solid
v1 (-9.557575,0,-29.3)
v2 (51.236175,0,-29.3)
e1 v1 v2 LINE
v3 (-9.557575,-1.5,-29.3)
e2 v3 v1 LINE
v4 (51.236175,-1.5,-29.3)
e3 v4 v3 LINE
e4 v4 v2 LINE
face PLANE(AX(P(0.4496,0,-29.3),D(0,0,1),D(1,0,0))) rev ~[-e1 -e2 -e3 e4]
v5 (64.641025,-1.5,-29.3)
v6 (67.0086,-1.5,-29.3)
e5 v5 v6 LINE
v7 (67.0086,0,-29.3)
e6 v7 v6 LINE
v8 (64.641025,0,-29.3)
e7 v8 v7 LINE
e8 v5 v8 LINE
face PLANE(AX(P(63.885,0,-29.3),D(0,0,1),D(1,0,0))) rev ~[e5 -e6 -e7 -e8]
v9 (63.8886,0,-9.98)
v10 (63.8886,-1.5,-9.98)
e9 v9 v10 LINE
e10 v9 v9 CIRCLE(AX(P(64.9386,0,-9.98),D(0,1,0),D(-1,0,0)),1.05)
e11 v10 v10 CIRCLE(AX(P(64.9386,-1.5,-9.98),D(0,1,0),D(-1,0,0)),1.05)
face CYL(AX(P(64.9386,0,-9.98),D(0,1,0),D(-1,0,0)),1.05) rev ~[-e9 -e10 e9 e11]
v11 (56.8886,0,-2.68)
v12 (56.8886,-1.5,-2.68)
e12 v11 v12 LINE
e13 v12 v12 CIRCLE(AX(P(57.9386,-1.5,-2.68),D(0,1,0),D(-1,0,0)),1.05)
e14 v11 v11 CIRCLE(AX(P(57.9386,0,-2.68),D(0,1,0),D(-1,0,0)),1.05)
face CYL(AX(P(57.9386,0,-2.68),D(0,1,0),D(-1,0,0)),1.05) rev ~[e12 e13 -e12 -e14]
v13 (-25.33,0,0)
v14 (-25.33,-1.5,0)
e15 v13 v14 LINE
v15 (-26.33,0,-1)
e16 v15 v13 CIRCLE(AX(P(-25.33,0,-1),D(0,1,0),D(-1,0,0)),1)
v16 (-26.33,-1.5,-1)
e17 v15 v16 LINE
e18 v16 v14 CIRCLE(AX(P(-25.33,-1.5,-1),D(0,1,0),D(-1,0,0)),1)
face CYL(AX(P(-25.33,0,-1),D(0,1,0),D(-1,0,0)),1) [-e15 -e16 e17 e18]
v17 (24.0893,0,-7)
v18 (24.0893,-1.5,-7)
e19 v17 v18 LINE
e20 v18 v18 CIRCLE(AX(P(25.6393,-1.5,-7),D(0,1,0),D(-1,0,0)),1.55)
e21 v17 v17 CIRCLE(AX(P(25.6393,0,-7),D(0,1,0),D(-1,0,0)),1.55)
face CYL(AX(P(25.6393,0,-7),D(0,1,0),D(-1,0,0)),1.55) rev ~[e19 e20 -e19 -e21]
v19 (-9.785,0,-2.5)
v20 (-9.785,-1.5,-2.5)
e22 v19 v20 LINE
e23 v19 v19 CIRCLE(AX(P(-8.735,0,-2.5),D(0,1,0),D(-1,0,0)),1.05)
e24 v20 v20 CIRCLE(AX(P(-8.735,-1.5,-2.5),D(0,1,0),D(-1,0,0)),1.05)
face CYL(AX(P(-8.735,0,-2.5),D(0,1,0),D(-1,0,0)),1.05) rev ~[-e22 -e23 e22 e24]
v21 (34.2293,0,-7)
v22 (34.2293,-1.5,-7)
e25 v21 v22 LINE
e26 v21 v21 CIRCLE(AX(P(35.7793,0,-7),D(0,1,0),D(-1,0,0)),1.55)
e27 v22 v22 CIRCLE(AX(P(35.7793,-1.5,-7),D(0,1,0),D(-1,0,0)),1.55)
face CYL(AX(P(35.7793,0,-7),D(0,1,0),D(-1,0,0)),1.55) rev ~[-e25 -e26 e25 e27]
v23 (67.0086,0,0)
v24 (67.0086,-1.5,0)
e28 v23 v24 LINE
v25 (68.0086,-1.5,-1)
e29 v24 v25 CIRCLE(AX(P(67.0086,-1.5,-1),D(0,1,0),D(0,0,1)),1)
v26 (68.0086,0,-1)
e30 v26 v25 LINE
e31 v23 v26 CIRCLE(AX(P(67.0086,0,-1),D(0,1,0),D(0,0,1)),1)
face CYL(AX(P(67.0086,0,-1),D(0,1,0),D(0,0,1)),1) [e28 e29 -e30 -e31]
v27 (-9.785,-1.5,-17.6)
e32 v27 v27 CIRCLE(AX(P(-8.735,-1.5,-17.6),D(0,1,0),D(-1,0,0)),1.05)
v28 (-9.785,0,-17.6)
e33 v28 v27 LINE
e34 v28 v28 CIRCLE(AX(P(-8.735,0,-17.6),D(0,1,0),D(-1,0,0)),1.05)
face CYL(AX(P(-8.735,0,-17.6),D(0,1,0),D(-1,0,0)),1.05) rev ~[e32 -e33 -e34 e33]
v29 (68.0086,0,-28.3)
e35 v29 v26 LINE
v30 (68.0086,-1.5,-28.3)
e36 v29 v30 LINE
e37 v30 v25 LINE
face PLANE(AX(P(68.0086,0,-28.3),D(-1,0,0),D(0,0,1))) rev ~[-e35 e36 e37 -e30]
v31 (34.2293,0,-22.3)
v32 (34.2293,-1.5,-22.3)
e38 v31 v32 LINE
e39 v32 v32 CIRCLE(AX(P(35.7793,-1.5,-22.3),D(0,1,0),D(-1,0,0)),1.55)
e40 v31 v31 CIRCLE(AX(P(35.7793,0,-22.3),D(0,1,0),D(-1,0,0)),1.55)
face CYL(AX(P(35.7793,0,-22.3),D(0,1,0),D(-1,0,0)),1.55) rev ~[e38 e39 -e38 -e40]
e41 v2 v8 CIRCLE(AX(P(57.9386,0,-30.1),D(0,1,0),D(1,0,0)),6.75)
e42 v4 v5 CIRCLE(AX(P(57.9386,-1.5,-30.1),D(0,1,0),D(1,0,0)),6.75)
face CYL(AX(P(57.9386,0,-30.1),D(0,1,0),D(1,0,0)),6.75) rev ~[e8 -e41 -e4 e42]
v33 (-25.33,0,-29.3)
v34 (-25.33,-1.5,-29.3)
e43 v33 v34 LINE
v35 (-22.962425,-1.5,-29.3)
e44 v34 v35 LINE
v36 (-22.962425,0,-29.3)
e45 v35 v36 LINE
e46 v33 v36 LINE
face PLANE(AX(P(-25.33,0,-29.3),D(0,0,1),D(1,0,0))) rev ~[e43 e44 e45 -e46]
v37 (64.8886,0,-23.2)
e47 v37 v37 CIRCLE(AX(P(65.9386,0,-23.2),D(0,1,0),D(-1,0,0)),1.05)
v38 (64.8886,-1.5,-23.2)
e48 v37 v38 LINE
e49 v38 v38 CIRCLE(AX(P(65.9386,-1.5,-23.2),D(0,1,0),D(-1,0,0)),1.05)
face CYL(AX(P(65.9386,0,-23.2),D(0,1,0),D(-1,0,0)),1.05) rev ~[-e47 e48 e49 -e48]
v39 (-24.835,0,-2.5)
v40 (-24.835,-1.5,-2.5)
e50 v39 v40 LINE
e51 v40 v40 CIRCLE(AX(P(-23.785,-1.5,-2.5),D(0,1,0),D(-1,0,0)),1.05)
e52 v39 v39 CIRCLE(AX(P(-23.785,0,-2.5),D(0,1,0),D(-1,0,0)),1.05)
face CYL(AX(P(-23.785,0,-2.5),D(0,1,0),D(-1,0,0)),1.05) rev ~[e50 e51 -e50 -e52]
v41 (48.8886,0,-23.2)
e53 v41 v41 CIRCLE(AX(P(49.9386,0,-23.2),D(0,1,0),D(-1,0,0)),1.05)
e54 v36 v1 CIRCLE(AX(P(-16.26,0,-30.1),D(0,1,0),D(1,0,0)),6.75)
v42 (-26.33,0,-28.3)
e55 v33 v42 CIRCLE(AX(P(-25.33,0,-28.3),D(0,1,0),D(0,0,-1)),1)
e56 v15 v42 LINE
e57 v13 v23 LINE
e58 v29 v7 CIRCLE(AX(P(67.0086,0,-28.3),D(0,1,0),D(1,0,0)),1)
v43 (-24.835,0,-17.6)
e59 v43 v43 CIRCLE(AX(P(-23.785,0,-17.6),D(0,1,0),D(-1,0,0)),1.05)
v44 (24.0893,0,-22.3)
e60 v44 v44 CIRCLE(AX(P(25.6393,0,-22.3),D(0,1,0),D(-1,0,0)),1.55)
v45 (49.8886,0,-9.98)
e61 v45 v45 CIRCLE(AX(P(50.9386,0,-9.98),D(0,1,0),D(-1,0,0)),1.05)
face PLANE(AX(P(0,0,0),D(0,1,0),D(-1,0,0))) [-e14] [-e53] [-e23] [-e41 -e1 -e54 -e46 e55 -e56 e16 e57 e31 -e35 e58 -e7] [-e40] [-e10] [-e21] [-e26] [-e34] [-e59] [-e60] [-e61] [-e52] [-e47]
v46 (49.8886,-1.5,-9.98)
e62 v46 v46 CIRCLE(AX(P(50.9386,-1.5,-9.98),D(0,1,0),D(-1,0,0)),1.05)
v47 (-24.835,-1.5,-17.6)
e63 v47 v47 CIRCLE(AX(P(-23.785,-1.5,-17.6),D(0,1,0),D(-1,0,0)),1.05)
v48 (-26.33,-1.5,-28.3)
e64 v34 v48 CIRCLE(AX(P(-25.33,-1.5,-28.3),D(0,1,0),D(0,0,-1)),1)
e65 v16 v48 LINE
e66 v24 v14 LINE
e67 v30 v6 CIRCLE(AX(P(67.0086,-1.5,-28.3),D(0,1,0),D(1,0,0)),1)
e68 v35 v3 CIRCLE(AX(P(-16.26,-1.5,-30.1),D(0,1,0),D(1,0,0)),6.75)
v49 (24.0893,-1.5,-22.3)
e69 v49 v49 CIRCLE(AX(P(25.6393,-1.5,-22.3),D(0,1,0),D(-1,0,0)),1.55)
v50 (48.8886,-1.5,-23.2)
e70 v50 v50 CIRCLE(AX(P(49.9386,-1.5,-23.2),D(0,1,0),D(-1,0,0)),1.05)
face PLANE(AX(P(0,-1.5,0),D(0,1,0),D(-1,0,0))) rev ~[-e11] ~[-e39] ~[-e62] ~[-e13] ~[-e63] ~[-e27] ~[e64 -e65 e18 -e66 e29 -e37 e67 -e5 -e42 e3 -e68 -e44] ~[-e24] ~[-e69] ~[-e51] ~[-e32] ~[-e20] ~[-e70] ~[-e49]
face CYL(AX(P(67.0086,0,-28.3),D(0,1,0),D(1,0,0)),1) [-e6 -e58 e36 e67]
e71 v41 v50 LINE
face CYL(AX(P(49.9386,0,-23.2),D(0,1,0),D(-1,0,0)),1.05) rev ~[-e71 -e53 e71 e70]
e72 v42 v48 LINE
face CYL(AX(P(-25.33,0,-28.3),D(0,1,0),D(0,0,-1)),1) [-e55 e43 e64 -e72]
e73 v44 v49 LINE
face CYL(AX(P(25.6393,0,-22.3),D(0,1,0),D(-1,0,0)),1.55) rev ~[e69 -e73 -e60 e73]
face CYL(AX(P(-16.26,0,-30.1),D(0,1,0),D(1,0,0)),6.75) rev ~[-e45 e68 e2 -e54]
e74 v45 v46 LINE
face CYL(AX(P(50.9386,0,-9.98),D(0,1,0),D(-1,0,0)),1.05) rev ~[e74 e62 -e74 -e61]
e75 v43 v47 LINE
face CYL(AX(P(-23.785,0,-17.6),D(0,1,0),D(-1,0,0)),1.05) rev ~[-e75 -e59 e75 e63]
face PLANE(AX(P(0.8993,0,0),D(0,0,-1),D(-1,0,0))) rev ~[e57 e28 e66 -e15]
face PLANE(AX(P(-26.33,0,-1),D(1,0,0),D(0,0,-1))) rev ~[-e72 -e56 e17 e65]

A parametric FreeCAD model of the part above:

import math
import FreeCAD as App
import Part
import Sketcher
from FreeCAD import Vector
Q = App.Units.Quantity

doc = App.newDocument("Part")
body = doc.addObject("PartDesign::Body", "Body")

# Sketch on XZ plane
sketch1 = body.newObject("Sketcher::SketchObject", "Sketch")
sketch1.AttachmentSupport = (doc.getObject("XZ_Plane"), [""])
sketch1.MapMode = "FlatFace"
sketch1.addGeometry(Part.ArcOfCircle(Part.Circle(Vector(-16.3, -30.1, 0), Vector(0, 0, 1), 6), math.radians(8), math.radians(172)), False)
sketch1.addGeometry(Part.LineSegment(Vector(-22.2, -29.3, 0), Vector(-25.3, -29.3, 0)), False)
sketch1.addGeometry(Part.ArcOfCircle(Part.Circle(Vector(-25.3, -28.3, 0), Vector(0, 0, 1), 1), math.radians(180), math.radians(270)), False)
sketch1.addGeometry(Part.LineSegment(Vector(-26.3, -28.3, 0), Vector(-26.3, -1, 0)), False)
sketch1.addGeometry(Part.ArcOfCircle(Part.Circle(Vector(-25.3, -1, 0), Vector(0, 0, 1), 1), math.radians(90), math.radians(180)), False)
sketch1.addGeometry(Part.LineSegment(Vector(-25.3, 0, 0), Vector(67, 0, 0)), False)
sketch1.addGeometry(Part.ArcOfCircle(Part.Circle(Vector(67, -1, 0), Vector(0, 0, 1), 1), math.radians(0), math.radians(90)), False)
sketch1.addGeometry(Part.LineSegment(Vector(68, -1, 0), Vector(68, -28.3, 0)), False)
sketch1.addGeometry(Part.ArcOfCircle(Part.Circle(Vector(67, -28.3, 0), Vector(0, 0, 1), 1), math.radians(-90), math.radians(0)), False)
sketch1.addGeometry(Part.LineSegment(Vector(67, -29.3, 0), Vector(63.9, -29.3, 0)), False)
sketch1.addGeometry(Part.ArcOfCircle(Part.Circle(Vector(57.9, -30.1, 0), Vector(0, 0, 1), 6), math.radians(8), math.radians(172)), False)
sketch1.addGeometry(Part.LineSegment(Vector(52, -29.3, 0), Vector(-10.3, -29.3, 0)), False)
sketch1.addGeometry(Part.Circle(Vector(25.6, -7, 0), Vector(0, 0, 1), 1.6), False)
sketch1.addGeometry(Part.Circle(Vector(35.8, -22.3, 0), Vector(0, 0, 1), 1.6), False)
sketch1.addGeometry(Part.Circle(Vector(25.6, -22.3, 0), Vector(0, 0, 1), 1.6), False)
sketch1.addGeometry(Part.Circle(Vector(35.8, -7, 0), Vector(0, 0, 1), 1.6), False)
sketch1.addGeometry(Part.Circle(Vector(-23.8, -2.5, 0), Vector(0, 0, 1), 1.1), False)
sketch1.addGeometry(Part.Circle(Vector(-8.7, -17.6, 0), Vector(0, 0, 1), 1.1), False)
sketch1.addGeometry(Part.Circle(Vector(-23.8, -17.6, 0), Vector(0, 0, 1), 1.1), False)
sketch1.addGeometry(Part.Circle(Vector(-8.7, -2.5, 0), Vector(0, 0, 1), 1.1), False)
sketch1.addGeometry(Part.Circle(Vector(57.9, -2.7, 0), Vector(0, 0, 1), 1.1), False)
sketch1.addGeometry(Part.Circle(Vector(65.9, -23.2, 0), Vector(0, 0, 1), 1.1), False)
sketch1.addGeometry(Part.Circle(Vector(49.9, -23.2, 0), Vector(0, 0, 1), 1.1), False)
sketch1.addGeometry(Part.Circle(Vector(64.9, -10, 0), Vector(0, 0, 1), 1.1), False)
sketch1.addGeometry(Part.Circle(Vector(50.9, -10, 0), Vector(0, 0, 1), 1.1), False)
sketch1.addConstraint(Sketcher.Constraint("Coincident", 0, 2, 1, 1))
sketch1.addConstraint(Sketcher.Constraint("Tangent", 1, 2, 2, 2))
sketch1.addConstraint(Sketcher.Constraint("Tangent", 2, 1, 3, 1))
sketch1.addConstraint(Sketcher.Constraint("Tangent", 3, 2, 4, 2))
sketch1.addConstraint(Sketcher.Constraint("Tangent", 4, 1, 5, 1))
sketch1.addConstraint(Sketcher.Constraint("Tangent", 5, 2, 6, 2))
sketch1.addConstraint(Sketcher.Constraint("Tangent", 6, 1, 7, 1))
sketch1.addConstraint(Sketcher.Constraint("Tangent", 7, 2, 8, 2))
sketch1.addConstraint(Sketcher.Constraint("Tangent", 8, 1, 9, 1))
sketch1.addConstraint(Sketcher.Constraint("Coincident", 9, 2, 10, 1))
sketch1.addConstraint(Sketcher.Constraint("Coincident", 10, 2, 11, 1))
sketch1.addConstraint(Sketcher.Constraint("Coincident", 11, 2, 0, 1))
sketch1.addConstraint(Sketcher.Constraint("Horizontal", 1))
sketch1.addConstraint(Sketcher.Constraint("Vertical", 3))
sketch1.addConstraint(Sketcher.Constraint("Horizontal", 5))
sketch1.addConstraint(Sketcher.Constraint("Vertical", 7))
sketch1.addConstraint(Sketcher.Constraint("Horizontal", 9))
sketch1.addConstraint(Sketcher.Constraint("Horizontal", 11))
sketch1.addConstraint(Sketcher.Constraint("Equal", 2, 4))
sketch1.addConstraint(Sketcher.Constraint("Equal", 4, 6))
sketch1.addConstraint(Sketcher.Constraint("Equal", 6, 8))
sketch1.addConstraint(Sketcher.Constraint("Equal", 0, 10))
sketch1.addConstraint(Sketcher.Constraint("Equal", 12, 13))
sketch1.addConstraint(Sketcher.Constraint("Equal", 13, 14))
sketch1.addConstraint(Sketcher.Constraint("Equal", 14, 15))
sketch1.addConstraint(Sketcher.Constraint("Equal", 16, 17))
sketch1.addConstraint(Sketcher.Constraint("Equal", 17, 18))
sketch1.addConstraint(Sketcher.Constraint("Equal", 18, 19))
sketch1.addConstraint(Sketcher.Constraint("Equal", 19, 20))
sketch1.addConstraint(Sketcher.Constraint("Equal", 20, 21))
sketch1.addConstraint(Sketcher.Constraint("Equal", 21, 22))
sketch1.addConstraint(Sketcher.Constraint("Equal", 22, 23))
sketch1.addConstraint(Sketcher.Constraint("Equal", 23, 24))
sketch1.addConstraint(Sketcher.Constraint("PointOnObject", 4, 1, -1))
sketch1.addConstraint(Sketcher.Constraint("Horizontal", 2, 3, 8, 3))
sketch1.addConstraint(Sketcher.Constraint("Horizontal", 0, 3, 10, 3))
sketch1.addConstraint(Sketcher.Constraint("Horizontal", 13, 3, 14, 3))
sketch1.addConstraint(Sketcher.Constraint("Horizontal", 12, 3, 15, 3))
sketch1.addConstraint(Sketcher.Constraint("Horizontal", 17, 3, 18, 3))
sketch1.addConstraint(Sketcher.Constraint("Horizontal", 16, 3, 19, 3))
sketch1.addConstraint(Sketcher.Constraint("Horizontal", 21, 3, 22, 3))
sketch1.addConstraint(Sketcher.Constraint("Horizontal", 23, 3, 24, 3))
sketch1.addConstraint(Sketcher.Constraint("Horizontal", 9, 2, 10, 2))
sketch1.addConstraint(Sketcher.Constraint("Vertical", 12, 3, 14, 3))
sketch1.addConstraint(Sketcher.Constraint("Vertical", 13, 3, 15, 3))
sketch1.addConstraint(Sketcher.Constraint("Vertical", 16, 3, 18, 3))
sketch1.addConstraint(Sketcher.Constraint("Vertical", 17, 3, 19, 3))
sketch1.addConstraint(Sketcher.Constraint("Vertical", 10, 3, 20, 3))
sketch1.addConstraint(Sketcher.Constraint("Equal", 1, 9))
sketch1.addConstraint(Sketcher.Constraint("Radius", 0, Q("6 mm")))
sketch1.addConstraint(Sketcher.Constraint("Radius", 2, Q("1 mm")))
sketch1.addConstraint(Sketcher.Constraint("Diameter", 12, Q("3.1 mm")))
sketch1.addConstraint(Sketcher.Constraint("Diameter", 16, Q("2.1 mm")))
sketch1.addConstraint(Sketcher.Constraint("DistanceY", 3, 1, 3, 2, Q("27.3 mm")))
sketch1.addConstraint(Sketcher.Constraint("DistanceY", 12, 3, -1, 1, Q("7 mm")))
sketch1.addConstraint(Sketcher.Constraint("DistanceY", 8, 3, 13, 3, Q("6 mm")))
sketch1.addConstraint(Sketcher.Constraint("DistanceX", 10, 3, 21, 3, Q("8 mm")))
sketch1.addConstraint(Sketcher.Constraint("DistanceX", 22, 3, 10, 3, Q("8 mm")))
sketch1.addConstraint(Sketcher.Constraint("DistanceX", 20, 3, 23, 3, Q("7 mm")))
sketch1.addConstraint(Sketcher.Constraint("DistanceX", 24, 3, 20, 3, Q("7 mm")))
sketch1.addConstraint(Sketcher.Constraint("DistanceY", 0, 3, -1, 1, Q("30.1 mm")))
sketch1.addConstraint(Sketcher.Constraint("DistanceY", 16, 3, -1, 1, Q("2.5 mm")))
sketch1.addConstraint(Sketcher.Constraint("DistanceY", 17, 3, -1, 1, Q("17.6 mm")))
sketch1.addConstraint(Sketcher.Constraint("DistanceY", 21, 3, -1, 1, Q("23.2 mm")))
sketch1.addConstraint(Sketcher.Constraint("DistanceY", 23, 3, 20, 3, Q("7.3 mm")))
sketch1.addConstraint(Sketcher.Constraint("DistanceX", 0, 3, -1, 1, Q("16.26 mm")))
sketch1.addConstraint(Sketcher.Constraint("DistanceX", 2, 3, -1, 1, Q("25.33 mm")))
sketch1.addConstraint(Sketcher.Constraint("DistanceY", 20, 3, -1, 1, Q("2.68 mm")))
sketch1.addConstraint(Sketcher.Constraint("DistanceX", 12, 3, 13, 3, Q("10.14 mm")))
sketch1.addConstraint(Sketcher.Constraint("DistanceX", 16, 3, 17, 3, Q("15.05 mm")))
sketch1.addConstraint(Sketcher.Constraint("DistanceX", 5, 1, 5, 2, Q("92.3386 mm")))
sketch1.addConstraint(Sketcher.Constraint("DistanceX", 16, 3, -1, 1, Q("23.785 mm")))
sketch1.addConstraint(Sketcher.Constraint("DistanceX", -1, 1, 12, 3, Q("25.6393 mm")))
pad1 = body.newObject("PartDesign::Pad", "Pad")
pad1.Profile = sketch1
pad1.Length = 1.5

# Sketch on XZ plane
sketch2 = body.newObject("Sketcher::SketchObject", "Sketch001")
sketch2.AttachmentSupport = (doc.getObject("XZ_Plane"), [""])
sketch2.MapMode = "FlatFace"
sketch2.addGeometry(Part.Circle(Vector(-16, -30, 0), Vector(0, 0, 1), 7), False)
sketch2.addGeometry(Part.Circle(Vector(58, -30, 0), Vector(0, 0, 1), 7), False)
sketch2.addConstraint(Sketcher.Constraint("Equal", 0, 1))
sketch2.addConstraint(Sketcher.Constraint("Horizontal", 0, 3, 1, 3))
sketch2.addConstraint(Sketcher.Constraint("Diameter", 0, Q("13.5 mm")))
sketch2.addConstraint(Sketcher.Constraint("DistanceY", 0, 3, -1, 1, Q("30.1 mm")))
sketch2.addConstraint(Sketcher.Constraint("DistanceX", 0, 3, -1, 1, Q("16.26 mm")))
sketch2.addConstraint(Sketcher.Constraint("DistanceX", -1, 1, 1, 3, Q("57.9386 mm")))
pocket1 = body.newObject("PartDesign::Pocket", "Pocket")
pocket1.Profile = sketch2
pocket1.Length = 10
pocket1.Reversed = True

doc.recompute()
